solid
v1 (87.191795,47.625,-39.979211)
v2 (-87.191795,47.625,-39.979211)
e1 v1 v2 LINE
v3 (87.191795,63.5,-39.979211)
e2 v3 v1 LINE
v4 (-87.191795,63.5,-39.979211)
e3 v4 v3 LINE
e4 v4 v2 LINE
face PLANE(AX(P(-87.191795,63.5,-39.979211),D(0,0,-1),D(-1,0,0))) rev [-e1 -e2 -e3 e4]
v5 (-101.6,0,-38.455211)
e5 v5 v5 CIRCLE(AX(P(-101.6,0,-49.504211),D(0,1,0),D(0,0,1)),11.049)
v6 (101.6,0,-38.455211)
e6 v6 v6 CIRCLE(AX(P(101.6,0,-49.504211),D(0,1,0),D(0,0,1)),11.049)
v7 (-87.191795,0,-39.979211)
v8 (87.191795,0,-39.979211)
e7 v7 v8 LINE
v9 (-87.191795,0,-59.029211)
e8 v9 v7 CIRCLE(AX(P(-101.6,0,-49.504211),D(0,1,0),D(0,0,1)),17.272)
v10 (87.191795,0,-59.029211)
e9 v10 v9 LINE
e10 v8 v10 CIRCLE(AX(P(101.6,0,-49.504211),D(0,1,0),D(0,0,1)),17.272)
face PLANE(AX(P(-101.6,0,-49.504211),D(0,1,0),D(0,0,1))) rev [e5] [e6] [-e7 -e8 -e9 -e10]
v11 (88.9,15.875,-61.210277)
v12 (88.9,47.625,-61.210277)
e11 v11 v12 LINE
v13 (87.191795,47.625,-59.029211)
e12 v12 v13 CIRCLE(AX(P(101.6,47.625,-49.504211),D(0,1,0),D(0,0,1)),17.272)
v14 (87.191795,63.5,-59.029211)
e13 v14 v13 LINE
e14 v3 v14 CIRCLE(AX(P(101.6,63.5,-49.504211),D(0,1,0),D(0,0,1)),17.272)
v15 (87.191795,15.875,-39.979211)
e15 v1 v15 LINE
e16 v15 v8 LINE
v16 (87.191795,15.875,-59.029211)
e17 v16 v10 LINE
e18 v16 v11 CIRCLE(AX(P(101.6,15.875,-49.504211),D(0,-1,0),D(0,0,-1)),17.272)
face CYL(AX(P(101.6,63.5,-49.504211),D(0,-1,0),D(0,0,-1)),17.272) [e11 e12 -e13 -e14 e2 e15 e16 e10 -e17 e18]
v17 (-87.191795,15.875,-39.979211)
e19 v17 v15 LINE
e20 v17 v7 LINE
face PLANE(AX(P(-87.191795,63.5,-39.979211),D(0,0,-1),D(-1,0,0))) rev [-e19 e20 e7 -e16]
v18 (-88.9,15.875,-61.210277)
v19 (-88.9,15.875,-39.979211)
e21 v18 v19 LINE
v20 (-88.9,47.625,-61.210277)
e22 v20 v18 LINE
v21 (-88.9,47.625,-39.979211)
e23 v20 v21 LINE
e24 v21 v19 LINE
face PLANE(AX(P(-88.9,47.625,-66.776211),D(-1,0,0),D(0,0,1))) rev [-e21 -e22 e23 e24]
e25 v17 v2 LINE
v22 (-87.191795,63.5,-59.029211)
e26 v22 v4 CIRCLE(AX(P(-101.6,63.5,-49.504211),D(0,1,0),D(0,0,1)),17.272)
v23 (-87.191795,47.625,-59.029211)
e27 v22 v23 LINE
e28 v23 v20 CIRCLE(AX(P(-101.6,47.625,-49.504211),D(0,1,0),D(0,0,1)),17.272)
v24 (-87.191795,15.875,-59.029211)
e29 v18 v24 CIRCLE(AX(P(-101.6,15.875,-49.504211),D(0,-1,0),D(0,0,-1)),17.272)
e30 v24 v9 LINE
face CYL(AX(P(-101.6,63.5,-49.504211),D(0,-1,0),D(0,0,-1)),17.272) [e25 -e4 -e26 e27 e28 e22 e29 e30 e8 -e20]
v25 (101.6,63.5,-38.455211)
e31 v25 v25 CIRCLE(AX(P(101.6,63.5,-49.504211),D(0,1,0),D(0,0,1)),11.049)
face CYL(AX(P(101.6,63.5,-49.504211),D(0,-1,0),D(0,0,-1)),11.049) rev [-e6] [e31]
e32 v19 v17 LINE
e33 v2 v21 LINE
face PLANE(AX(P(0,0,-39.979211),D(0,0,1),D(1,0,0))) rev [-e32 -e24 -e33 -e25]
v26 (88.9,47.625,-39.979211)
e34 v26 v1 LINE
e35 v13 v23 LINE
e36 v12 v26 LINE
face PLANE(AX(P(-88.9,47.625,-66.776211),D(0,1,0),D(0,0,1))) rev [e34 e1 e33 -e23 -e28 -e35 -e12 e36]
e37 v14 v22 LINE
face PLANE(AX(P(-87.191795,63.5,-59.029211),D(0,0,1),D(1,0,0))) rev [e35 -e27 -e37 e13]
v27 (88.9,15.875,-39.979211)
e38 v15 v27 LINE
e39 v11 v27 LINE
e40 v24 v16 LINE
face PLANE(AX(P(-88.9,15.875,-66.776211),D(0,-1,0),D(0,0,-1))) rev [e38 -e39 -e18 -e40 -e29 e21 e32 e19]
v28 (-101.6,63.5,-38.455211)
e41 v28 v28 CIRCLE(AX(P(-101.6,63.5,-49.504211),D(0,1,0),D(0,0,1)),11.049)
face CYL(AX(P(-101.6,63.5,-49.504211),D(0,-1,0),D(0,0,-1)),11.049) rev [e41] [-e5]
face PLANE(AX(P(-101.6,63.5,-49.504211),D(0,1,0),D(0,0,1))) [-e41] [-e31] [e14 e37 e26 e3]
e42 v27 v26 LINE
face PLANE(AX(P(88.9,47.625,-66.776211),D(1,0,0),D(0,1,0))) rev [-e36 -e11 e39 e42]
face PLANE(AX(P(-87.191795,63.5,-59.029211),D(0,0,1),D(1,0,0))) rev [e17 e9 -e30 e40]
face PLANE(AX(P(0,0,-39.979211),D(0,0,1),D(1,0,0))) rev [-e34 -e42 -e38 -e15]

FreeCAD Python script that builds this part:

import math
import FreeCAD as App
import Part
import Sketcher
Q = App.Units.Quantity

doc = App.newDocument("Part")
body = doc.addObject("PartDesign::Body", "Body")

# Sketch on XZ plane
sketch1 = doc.addObject("Sketcher::SketchObject", "Sketch")
body.addObject(sketch1)
sketch1.AttachmentSupport = (doc.XZ_Plane, [""])
sketch1.MapMode = "FlatFace"
sketch1.addGeometry([
    Part.LineSegment(App.Vector(87.191795, -59.029211, 0), App.Vector(-87.191795, -59.029211, 0)),  # 0
    Part.ArcOfCircle(Part.Circle(App.Vector(-101.6, -49.504211, 0), App.Vector(0, 0, 1), 17.272), math.radians(33.46796), math.radians(326.53204)),  # 1
    Part.LineSegment(App.Vector(-87.191795, -39.979211, 0), App.Vector(87.191795, -39.979211, 0)),  # 2
    Part.ArcOfCircle(Part.Circle(App.Vector(101.6, -49.504211, 0), App.Vector(0, 0, 1), 17.272), math.radians(-146.53204), math.radians(146.53204)),  # 3
    Part.Circle(App.Vector(101.6, -49.504211, 0), App.Vector(0, 0, 1), 11.049),  # 4
    Part.Circle(App.Vector(-101.6, -49.504211, 0), App.Vector(0, 0, 1), 11.049),  # 5
], False)
sketch1.addConstraint([
    Sketcher.Constraint("Coincident", 0, 2, 1, 2),
    Sketcher.Constraint("Coincident", 1, 1, 2, 1),
    Sketcher.Constraint("Coincident", 2, 2, 3, 2),
    Sketcher.Constraint("Coincident", 3, 1, 0, 1),
    Sketcher.Constraint("Horizontal", 0),
    Sketcher.Constraint("Horizontal", 2),
    Sketcher.Constraint("Coincident", 4, 3, 3, 3),
    Sketcher.Constraint("Coincident", 5, 3, 1, 3),
    Sketcher.Constraint("Equal", 1, 3),
    Sketcher.Constraint("Equal", 4, 5),
    Sketcher.Constraint("Symmetric", 1, 3, 3, 3, -2),
    Sketcher.Constraint("Vertical", 0, 2, 1, 1),
    Sketcher.Constraint("Diameter", 4, Q("0.87 in")),
    Sketcher.Constraint("Radius", 1, Q("0.68 in")),
    Sketcher.Constraint("DistanceX", 1, 3, -1, 1, Q("4 in")),
    Sketcher.Constraint("DistanceY", 0, 2, 1, 1, Q("0.75 in")),
    Sketcher.Constraint("DistanceY", 1, 3, -1, 1, Q("49.504211 mm")),
])
pad1 = doc.addObject("PartDesign::Pad", "Pad")
body.addObject(pad1)
pad1.Profile = sketch1
pad1.Length = Q("2.5 in")
pad1.Reversed = True

# Sketch on XY plane
sketch2 = doc.addObject("Sketcher::SketchObject", "Sketch001")
body.addObject(sketch2)
sketch2.AttachmentSupport = (doc.XY_Plane, [""])
sketch2.MapMode = "FlatFace"
sketch2.AttachmentOffset = App.Placement(App.Vector(0, 0, -39.979211), App.Rotation())
sketch2.addGeometry([
    Part.LineSegment(App.Vector(-88.9, 47.625, 0), App.Vector(-88.9, 15.875, 0)),
    Part.LineSegment(App.Vector(-88.9, 15.875, 0), App.Vector(88.9, 15.875, 0)),
    Part.LineSegment(App.Vector(88.9, 15.875, 0), App.Vector(88.9, 47.625, 0)),
    Part.LineSegment(App.Vector(88.9, 47.625, 0), App.Vector(-88.9, 47.625, 0)),
], False)
sketch2.addConstraint([
    Sketcher.Constraint("Coincident", 0, 2, 1, 1),
    Sketcher.Constraint("Coincident", 1, 2, 2, 1),
    Sketcher.Constraint("Coincident", 2, 2, 3, 1),
    Sketcher.Constraint("Coincident", 3, 2, 0, 1),
    Sketcher.Constraint("Vertical", 0),
    Sketcher.Constraint("Horizontal", 1),
    Sketcher.Constraint("Vertical", 2),
    Sketcher.Constraint("Horizontal", 3),
    Sketcher.Constraint("DistanceX", 1, 1, 1, 2, Q("7 in")),
    Sketcher.Constraint("DistanceY", 0, 2, 0, 1, Q("1.25 in")),
    Sketcher.Constraint("DistanceX", 0, 2, -1, 1, Q("3.5 in")),
    Sketcher.Constraint("DistanceY", -1, 1, 0, 2, Q("0.625 in")),
])
pocket1 = doc.addObject("PartDesign::Pocket", "Pocket")
body.addObject(pocket1)
pocket1.Profile = sketch2
pocket1.Type = "ThroughAll"

doc.recompute()
